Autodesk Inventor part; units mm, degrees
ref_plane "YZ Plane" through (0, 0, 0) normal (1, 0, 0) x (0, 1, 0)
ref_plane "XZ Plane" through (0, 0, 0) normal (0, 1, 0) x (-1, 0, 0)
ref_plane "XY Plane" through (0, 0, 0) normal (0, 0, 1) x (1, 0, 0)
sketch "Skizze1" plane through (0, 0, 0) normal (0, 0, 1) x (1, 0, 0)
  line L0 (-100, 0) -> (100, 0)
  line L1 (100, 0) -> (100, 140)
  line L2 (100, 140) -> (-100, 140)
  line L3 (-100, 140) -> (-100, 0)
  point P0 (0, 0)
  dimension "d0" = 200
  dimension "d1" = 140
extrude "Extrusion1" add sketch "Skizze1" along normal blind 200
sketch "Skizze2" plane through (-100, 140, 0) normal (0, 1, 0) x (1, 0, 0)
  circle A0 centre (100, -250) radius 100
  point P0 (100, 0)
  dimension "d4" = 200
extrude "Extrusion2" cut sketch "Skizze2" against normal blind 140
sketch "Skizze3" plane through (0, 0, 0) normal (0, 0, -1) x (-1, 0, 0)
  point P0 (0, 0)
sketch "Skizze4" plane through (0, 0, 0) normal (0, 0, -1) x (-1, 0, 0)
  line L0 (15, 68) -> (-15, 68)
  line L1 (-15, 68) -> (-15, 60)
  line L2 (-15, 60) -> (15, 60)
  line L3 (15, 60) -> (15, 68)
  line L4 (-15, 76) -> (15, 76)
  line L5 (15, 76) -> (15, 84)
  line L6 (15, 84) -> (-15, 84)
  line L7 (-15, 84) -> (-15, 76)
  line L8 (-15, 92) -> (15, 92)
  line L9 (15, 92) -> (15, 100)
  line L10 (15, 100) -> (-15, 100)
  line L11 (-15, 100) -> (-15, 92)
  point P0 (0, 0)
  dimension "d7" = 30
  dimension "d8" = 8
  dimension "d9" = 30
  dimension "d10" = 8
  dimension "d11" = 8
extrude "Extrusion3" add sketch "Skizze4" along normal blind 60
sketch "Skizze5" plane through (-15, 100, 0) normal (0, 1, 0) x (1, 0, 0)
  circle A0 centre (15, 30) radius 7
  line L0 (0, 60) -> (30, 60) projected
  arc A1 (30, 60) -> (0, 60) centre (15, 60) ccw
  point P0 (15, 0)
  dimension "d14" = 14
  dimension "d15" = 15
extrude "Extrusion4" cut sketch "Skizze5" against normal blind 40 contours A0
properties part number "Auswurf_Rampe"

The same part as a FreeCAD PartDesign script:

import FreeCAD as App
import Part
import Sketcher
from FreeCAD import Vector
Q = App.Units.Quantity

doc = App.newDocument("Part")
body = doc.addObject("PartDesign::Body", "Body")

# Sketch on XY plane
sketch1 = doc.addObject("Sketcher::SketchObject", "Sketch")
body.addObject(sketch1)
sketch1.AttachmentSupport = (doc.XY_Plane, [""])
sketch1.MapMode = "FlatFace"
sketch1.addGeometry([
    Part.LineSegment(Vector(-100, 140, 0), Vector(-100, 0, 0)),
    Part.LineSegment(Vector(-100, 0, 0), Vector(100, 0, 0)),
    Part.LineSegment(Vector(100, 0, 0), Vector(100, 140, 0)),
    Part.LineSegment(Vector(100, 140, 0), Vector(-100, 140, 0)),
], False)
sketch1.addConstraint([
    Sketcher.Constraint("Coincident", 0, 2, 1, 1),
    Sketcher.Constraint("Coincident", 1, 2, 2, 1),
    Sketcher.Constraint("Coincident", 2, 2, 3, 1),
    Sketcher.Constraint("Coincident", 3, 2, 0, 1),
    Sketcher.Constraint("Vertical", 0),
    Sketcher.Constraint("Horizontal", 1),
    Sketcher.Constraint("Vertical", 2),
    Sketcher.Constraint("Horizontal", 3),
    Sketcher.Constraint("Symmetric", 0, 2, 1, 2, -1, 1),
    Sketcher.Constraint("DistanceX", 1, 1, 1, 2, Q("200 mm")),
    Sketcher.Constraint("DistanceY", 0, 2, 0, 1, Q("140 mm")),
])
pad1 = doc.addObject("PartDesign::Pad", "Pad")
body.addObject(pad1)
pad1.Profile = sketch1
pad1.Length = 200

# Sketch on XZ plane
sketch2 = doc.addObject("Sketcher::SketchObject", "Sketch001")
body.addObject(sketch2)
sketch2.AttachmentSupport = (doc.XZ_Plane, [""])
sketch2.MapMode = "FlatFace"
sketch2.AttachmentOffset = App.Placement(Vector(0, 0, -140), App.Rotation())
sketch2.addGeometry(Part.Circle(Vector(0, 250, 0), Vector(0, 0, 1), 100), False)
sketch2.addConstraint([
    Sketcher.Constraint("PointOnObject", 0, 3, -2),
    Sketcher.Constraint("Diameter", 0, Q("200 mm")),
    Sketcher.Constraint("DistanceY", -1, 1, 0, 3, Q("250 mm")),
])
pocket1 = doc.addObject("PartDesign::Pocket", "Pocket")
body.addObject(pocket1)
pocket1.Profile = sketch2
pocket1.Length = 140
pocket1.Reversed = True

# Sketch on XY plane
sketch3 = doc.addObject("Sketcher::SketchObject", "Sketch002")
body.addObject(sketch3)
sketch3.AttachmentSupport = (doc.XY_Plane, [""])
sketch3.MapMode = "FlatFace"
sketch3.addGeometry([
    Part.LineSegment(Vector(-15, 60, 0), Vector(-15, 68, 0)),  # 0
    Part.LineSegment(Vector(-15, 68, 0), Vector(15, 68, 0)),  # 1
    Part.LineSegment(Vector(15, 68, 0), Vector(15, 60, 0)),  # 2
    Part.LineSegment(Vector(15, 60, 0), Vector(-15, 60, 0)),  # 3
    Part.LineSegment(Vector(15, 84, 0), Vector(15, 76, 0)),  # 4
    Part.LineSegment(Vector(15, 76, 0), Vector(-15, 76, 0)),  # 5
    Part.LineSegment(Vector(-15, 76, 0), Vector(-15, 84, 0)),  # 6
    Part.LineSegment(Vector(-15, 84, 0), Vector(15, 84, 0)),  # 7
    Part.LineSegment(Vector(15, 100, 0), Vector(15, 92, 0)),  # 8
    Part.LineSegment(Vector(15, 92, 0), Vector(-15, 92, 0)),  # 9
    Part.LineSegment(Vector(-15, 92, 0), Vector(-15, 100, 0)),  # 10
    Part.LineSegment(Vector(-15, 100, 0), Vector(15, 100, 0)),  # 11
], False)
sketch3.addConstraint([
    Sketcher.Constraint("Coincident", 0, 2, 1, 1),
    Sketcher.Constraint("Coincident", 1, 2, 2, 1),
    Sketcher.Constraint("Coincident", 2, 2, 3, 1),
    Sketcher.Constraint("Coincident", 3, 2, 0, 1),
    Sketcher.Constraint("Coincident", 4, 2, 5, 1),
    Sketcher.Constraint("Coincident", 5, 2, 6, 1),
    Sketcher.Constraint("Coincident", 6, 2, 7, 1),
    Sketcher.Constraint("Coincident", 7, 2, 4, 1),
    Sketcher.Constraint("Coincident", 8, 2, 9, 1),
    Sketcher.Constraint("Coincident", 9, 2, 10, 1),
    Sketcher.Constraint("Coincident", 10, 2, 11, 1),
    Sketcher.Constraint("Coincident", 11, 2, 8, 1),
    Sketcher.Constraint("Vertical", 0),
    Sketcher.Constraint("Horizontal", 1),
    Sketcher.Constraint("Vertical", 2),
    Sketcher.Constraint("Horizontal", 3),
    Sketcher.Constraint("Vertical", 4),
    Sketcher.Constraint("Horizontal", 5),
    Sketcher.Constraint("Vertical", 6),
    Sketcher.Constraint("Horizontal", 7),
    Sketcher.Constraint("Vertical", 8),
    Sketcher.Constraint("Horizontal", 9),
    Sketcher.Constraint("Vertical", 10),
    Sketcher.Constraint("Horizontal", 11),
    Sketcher.Constraint("Vertical", 2, 2, 4, 2),
    Sketcher.Constraint("Vertical", 3, 2, 5, 2),
    Sketcher.Constraint("Vertical", 7, 2, 8, 2),
    Sketcher.Constraint("Vertical", 6, 2, 9, 2),
    Sketcher.Constraint("Equal", 2, 4),
    Sketcher.Constraint("Equal", 6, 8),
    Sketcher.Constraint("DistanceX", 1, 1, 1, 2, Q("30 mm")),
    Sketcher.Constraint("DistanceY", 0, 1, 0, 2, Q("8 mm")),
    Sketcher.Constraint("DistanceY", 1, 2, 4, 2, Q("8 mm")),
    Sketcher.Constraint("DistanceY", 7, 2, 8, 2, Q("8 mm")),
    Sketcher.Constraint("DistanceX", 0, 2, -1, 1, Q("15 mm")),
    Sketcher.Constraint("DistanceY", -1, 1, 0, 2, Q("68 mm")),
])
pad2 = doc.addObject("PartDesign::Pad", "Pad001")
body.addObject(pad2)
pad2.Profile = sketch3
pad2.Length = 60
pad2.Reversed = True

# Sketch on XZ plane
sketch4 = doc.addObject("Sketcher::SketchObject", "Sketch003")
body.addObject(sketch4)
sketch4.AttachmentSupport = (doc.XZ_Plane, [""])
sketch4.MapMode = "FlatFace"
sketch4.AttachmentOffset = App.Placement(Vector(0, 0, -100), App.Rotation())
sketch4.addGeometry(Part.Circle(Vector(0, -30, 0), Vector(0, 0, 1), 7), False)
sketch4.addConstraint([
    Sketcher.Constraint("PointOnObject", 0, 3, -2),
    Sketcher.Constraint("Diameter", 0, Q("14 mm")),
    Sketcher.Constraint("DistanceY", 0, 3, -1, 1, Q("30 mm")),
])
pocket2 = doc.addObject("PartDesign::Pocket", "Pocket001")
body.addObject(pocket2)
pocket2.Profile = sketch4
pocket2.Length = 40
pocket2.Reversed = True

doc.recompute()
